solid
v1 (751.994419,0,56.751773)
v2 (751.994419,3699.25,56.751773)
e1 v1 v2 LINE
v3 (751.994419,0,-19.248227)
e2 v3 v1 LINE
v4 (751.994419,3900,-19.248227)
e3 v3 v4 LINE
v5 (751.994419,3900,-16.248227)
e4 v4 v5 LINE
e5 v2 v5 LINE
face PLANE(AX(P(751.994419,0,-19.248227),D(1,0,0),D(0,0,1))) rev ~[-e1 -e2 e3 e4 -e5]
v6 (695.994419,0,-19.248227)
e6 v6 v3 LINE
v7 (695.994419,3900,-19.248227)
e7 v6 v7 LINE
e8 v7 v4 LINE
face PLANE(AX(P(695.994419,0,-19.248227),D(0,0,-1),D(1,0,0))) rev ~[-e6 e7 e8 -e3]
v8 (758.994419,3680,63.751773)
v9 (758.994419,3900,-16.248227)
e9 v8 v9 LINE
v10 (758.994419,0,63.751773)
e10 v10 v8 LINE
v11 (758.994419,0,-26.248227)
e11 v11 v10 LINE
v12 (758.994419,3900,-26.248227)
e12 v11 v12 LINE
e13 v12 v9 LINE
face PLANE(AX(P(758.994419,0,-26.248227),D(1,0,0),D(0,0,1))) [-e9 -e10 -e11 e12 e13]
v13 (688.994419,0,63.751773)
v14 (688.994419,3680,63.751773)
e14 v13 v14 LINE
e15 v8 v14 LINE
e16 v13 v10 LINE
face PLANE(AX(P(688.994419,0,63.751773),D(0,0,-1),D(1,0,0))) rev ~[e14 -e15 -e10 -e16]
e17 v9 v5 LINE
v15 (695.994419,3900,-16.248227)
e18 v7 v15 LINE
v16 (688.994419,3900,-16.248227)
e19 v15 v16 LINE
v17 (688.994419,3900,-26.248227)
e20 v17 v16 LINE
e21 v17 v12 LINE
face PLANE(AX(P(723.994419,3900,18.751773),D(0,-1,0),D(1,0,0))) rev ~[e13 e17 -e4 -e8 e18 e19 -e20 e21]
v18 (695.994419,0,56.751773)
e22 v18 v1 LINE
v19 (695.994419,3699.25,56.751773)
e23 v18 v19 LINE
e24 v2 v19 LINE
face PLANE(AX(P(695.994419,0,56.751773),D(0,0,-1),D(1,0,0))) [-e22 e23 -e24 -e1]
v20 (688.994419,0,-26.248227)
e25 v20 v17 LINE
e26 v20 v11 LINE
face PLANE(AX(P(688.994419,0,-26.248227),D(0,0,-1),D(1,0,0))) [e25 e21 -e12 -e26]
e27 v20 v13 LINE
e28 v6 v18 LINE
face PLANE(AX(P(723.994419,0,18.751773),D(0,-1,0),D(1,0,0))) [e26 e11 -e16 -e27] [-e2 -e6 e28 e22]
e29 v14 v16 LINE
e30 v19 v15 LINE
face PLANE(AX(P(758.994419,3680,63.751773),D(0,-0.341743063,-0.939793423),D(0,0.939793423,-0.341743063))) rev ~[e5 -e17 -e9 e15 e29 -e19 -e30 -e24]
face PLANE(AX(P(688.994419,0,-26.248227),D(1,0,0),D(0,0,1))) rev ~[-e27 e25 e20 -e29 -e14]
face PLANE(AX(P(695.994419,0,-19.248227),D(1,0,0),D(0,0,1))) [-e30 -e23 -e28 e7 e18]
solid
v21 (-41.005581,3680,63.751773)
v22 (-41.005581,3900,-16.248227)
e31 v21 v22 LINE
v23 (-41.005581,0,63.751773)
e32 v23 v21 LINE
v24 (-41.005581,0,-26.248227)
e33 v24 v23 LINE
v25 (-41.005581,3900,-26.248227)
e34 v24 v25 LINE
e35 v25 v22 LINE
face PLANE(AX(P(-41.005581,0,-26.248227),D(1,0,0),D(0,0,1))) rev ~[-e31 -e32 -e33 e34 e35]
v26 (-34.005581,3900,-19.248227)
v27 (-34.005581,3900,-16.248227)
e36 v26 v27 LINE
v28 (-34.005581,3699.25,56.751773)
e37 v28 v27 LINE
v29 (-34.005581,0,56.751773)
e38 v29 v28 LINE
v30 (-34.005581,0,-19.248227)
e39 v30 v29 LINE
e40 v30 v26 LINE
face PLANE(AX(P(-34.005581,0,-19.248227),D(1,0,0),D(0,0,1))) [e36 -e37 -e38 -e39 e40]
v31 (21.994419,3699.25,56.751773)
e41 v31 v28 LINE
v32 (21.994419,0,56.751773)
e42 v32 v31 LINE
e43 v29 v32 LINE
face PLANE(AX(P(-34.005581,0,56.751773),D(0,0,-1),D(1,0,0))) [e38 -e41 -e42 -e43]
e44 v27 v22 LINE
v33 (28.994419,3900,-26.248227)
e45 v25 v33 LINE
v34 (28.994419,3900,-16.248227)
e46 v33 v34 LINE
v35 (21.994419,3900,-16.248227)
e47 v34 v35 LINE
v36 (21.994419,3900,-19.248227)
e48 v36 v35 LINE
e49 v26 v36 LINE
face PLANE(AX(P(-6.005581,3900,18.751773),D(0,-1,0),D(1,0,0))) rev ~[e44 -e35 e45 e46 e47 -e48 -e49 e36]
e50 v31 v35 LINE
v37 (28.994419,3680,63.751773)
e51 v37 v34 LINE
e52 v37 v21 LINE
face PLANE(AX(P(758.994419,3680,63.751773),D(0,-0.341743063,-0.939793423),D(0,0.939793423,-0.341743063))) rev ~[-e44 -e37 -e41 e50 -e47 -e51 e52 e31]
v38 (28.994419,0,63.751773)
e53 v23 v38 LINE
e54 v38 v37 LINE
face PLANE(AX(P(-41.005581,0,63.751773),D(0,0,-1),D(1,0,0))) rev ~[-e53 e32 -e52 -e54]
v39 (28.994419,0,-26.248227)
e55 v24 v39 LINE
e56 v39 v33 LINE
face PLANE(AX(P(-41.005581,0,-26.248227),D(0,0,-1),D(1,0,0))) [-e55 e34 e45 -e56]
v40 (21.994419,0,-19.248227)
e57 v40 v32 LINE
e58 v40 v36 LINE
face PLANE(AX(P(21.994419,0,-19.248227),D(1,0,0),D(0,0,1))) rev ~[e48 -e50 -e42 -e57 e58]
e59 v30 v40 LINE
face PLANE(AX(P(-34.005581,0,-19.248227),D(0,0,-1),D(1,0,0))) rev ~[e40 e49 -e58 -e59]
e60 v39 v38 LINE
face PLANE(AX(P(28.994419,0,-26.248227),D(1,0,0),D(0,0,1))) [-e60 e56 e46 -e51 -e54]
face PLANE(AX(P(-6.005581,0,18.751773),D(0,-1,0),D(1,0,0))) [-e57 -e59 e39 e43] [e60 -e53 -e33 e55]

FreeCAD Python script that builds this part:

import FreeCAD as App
import Part
import Sketcher
from FreeCAD import Vector
Q = App.Units.Quantity


def add_polygon(sketch, points):
    """Adds a closed chain of lines whose ends are joined by coincident constraints."""
    first, n = sketch.GeometryCount, len(points)
    for a, b in zip(points, points[1:] + points[:1]):
        sketch.addGeometry(Part.LineSegment(App.Vector(*a, 0), App.Vector(*b, 0)), False)
    for i in range(n):
        sketch.addConstraint(Sketcher.Constraint("Coincident", first + i, 2, first + (i + 1) % n, 1))

doc = App.newDocument("Part")
params = doc.addObject("Spreadsheet::Sheet", "Params")
for row, (alias, value) in enumerate([
    ("sketch1_width", "70 mm"),
    ("sketch1_width2", "56 mm"),
    ("sketch1_height", "90 mm"),
    ("sketch1_height2", "76 mm"),
    ("pad1_length", "3900 mm"),
    ("sketch2_width", "220 mm"),
    ("sketch2_height", "80 mm"),
    ("sketch3_width", "220 mm"),
    ("sketch3_height", "80 mm"),
], start=1):
    params.set(f"A{row}", alias)
    params.set(f"B{row}", "=" + value)
    params.setAlias(f"B{row}", alias)

body = doc.addObject("PartDesign::Body", "Body")
body.AllowCompound = True

sketch1 = body.newObject("Sketcher::SketchObject", "Sketch")
sketch1.AttachmentSupport = (doc.getObject("XZ_Plane"), [""])
sketch1.MapMode = "FlatFace"
add_polygon(sketch1, [(-41.005581, 63.751773), (-41.005581, -26.248227), (28.994419, -26.248227), (28.994419, 63.751773)])
add_polygon(sketch1, [(21.994419, -19.248227), (-34.005581, -19.248227), (-34.005581, 56.751773), (21.994419, 56.751773)])
add_polygon(sketch1, [(688.994419, 63.751773), (688.994419, -26.248227), (758.994419, -26.248227), (758.994419, 63.751773)])
add_polygon(sketch1, [(751.994419, -19.248227), (695.994419, -19.248227), (695.994419, 56.751773), (751.994419, 56.751773)])
sketch1.addConstraint([
    Sketcher.Constraint("Vertical", 0),
    Sketcher.Constraint("Horizontal", 1),
    Sketcher.Constraint("Vertical", 2),
    Sketcher.Constraint("Horizontal", 3),
    Sketcher.Constraint("Horizontal", 4),
    Sketcher.Constraint("Vertical", 5),
    Sketcher.Constraint("Horizontal", 6),
    Sketcher.Constraint("Vertical", 7),
    Sketcher.Constraint("Vertical", 8),
    Sketcher.Constraint("Horizontal", 9),
    Sketcher.Constraint("Vertical", 10),
    Sketcher.Constraint("Horizontal", 11),
    Sketcher.Constraint("Horizontal", 12),
    Sketcher.Constraint("Vertical", 13),
    Sketcher.Constraint("Horizontal", 14),
    Sketcher.Constraint("Vertical", 15),
    Sketcher.Constraint("Horizontal", 1, 2, 8, 2),
    Sketcher.Constraint("Horizontal", 3, 2, 10, 2),
    Sketcher.Constraint("Horizontal", 7, 2, 12, 2),
    Sketcher.Constraint("Horizontal", 6, 2, 13, 2),
    Sketcher.Constraint("Equal", 3, 9),
    Sketcher.Constraint("Equal", 6, 12),
    Sketcher.Constraint("DistanceX", 1, 1, 1, 2, Q("70 mm")),
    Sketcher.Constraint("DistanceX", 4, 2, 4, 1, Q("56 mm")),
    Sketcher.Constraint("DistanceY", 0, 2, 0, 1, Q("90 mm")),
    Sketcher.Constraint("DistanceY", 5, 1, 5, 2, Q("76 mm")),
    Sketcher.Constraint("DistanceX", 0, 2, 4, 2, Q("7 mm")),
    Sketcher.Constraint("DistanceY", 0, 2, 4, 2, Q("7 mm")),
    Sketcher.Constraint("DistanceX", 1, 2, 8, 2, Q("660 mm")),
    Sketcher.Constraint("DistanceX", 8, 2, 12, 2, Q("7 mm")),
    Sketcher.Constraint("DistanceX", 0, 2, -1, 1, Q("41.005581 mm")),
    Sketcher.Constraint("DistanceY", 0, 2, -1, 1, Q("26.248227 mm")),
])
sketch1.setExpression("Constraints[38]", "Params.sketch1_width")
sketch1.setExpression("Constraints[39]", "Params.sketch1_width2")
sketch1.setExpression("Constraints[40]", "Params.sketch1_height")
sketch1.setExpression("Constraints[41]", "Params.sketch1_height2")
pad1 = body.newObject("PartDesign::Pad", "Pad")
pad1.Profile = sketch1
pad1.setExpression("Length", "Params.pad1_length")
pad1.Reversed = True

sketch2 = body.newObject("Sketcher::SketchObject", "Sketch001")
sketch2.AttachmentSupport = (doc.getObject("YZ_Plane"), [""])
sketch2.MapMode = "FlatFace"
sketch2.AttachmentOffset = App.Placement(Vector(0, 0, 758.994419), App.Rotation())
add_polygon(sketch2, [(3900, 63.751773), (3680, 63.751773), (3900, -16.248227)])
sketch2.addConstraint([
    Sketcher.Constraint("Horizontal", 0),
    Sketcher.Constraint("Vertical", 2),
    Sketcher.Constraint("DistanceX", 0, 2, 0, 1, Q("220 mm")),
    Sketcher.Constraint("DistanceY", 2, 1, 2, 2, Q("80 mm")),
    Sketcher.Constraint("DistanceX", -1, 1, 0, 2, Q("3680 mm")),
    Sketcher.Constraint("DistanceY", -1, 1, 0, 2, Q("63.751773 mm")),
])
sketch2.setExpression("Constraints[5]", "Params.sketch2_width")
sketch2.setExpression("Constraints[6]", "Params.sketch2_height")
pocket1 = body.newObject("PartDesign::Pocket", "Pocket")
pocket1.Profile = sketch2
pocket1.Type = "ThroughAll"

sketch3 = body.newObject("Sketcher::SketchObject", "Sketch002")
sketch3.AttachmentSupport = (doc.getObject("YZ_Plane"), [""])
sketch3.MapMode = "FlatFace"
sketch3.AttachmentOffset = App.Placement(Vector(0, 0, 28.994419), App.Rotation())
add_polygon(sketch3, [(3900, 63.751773), (3680, 63.751773), (3900, -16.248227)])
sketch3.addConstraint([
    Sketcher.Constraint("Horizontal", 0),
    Sketcher.Constraint("Vertical", 2),
    Sketcher.Constraint("DistanceX", 0, 2, 0, 1, Q("220 mm")),
    Sketcher.Constraint("DistanceY", 2, 1, 2, 2, Q("80 mm")),
    Sketcher.Constraint("DistanceX", -1, 1, 0, 2, Q("3680 mm")),
    Sketcher.Constraint("DistanceY", -1, 1, 0, 2, Q("63.751773 mm")),
])
sketch3.setExpression("Constraints[5]", "Params.sketch3_width")
sketch3.setExpression("Constraints[6]", "Params.sketch3_height")
pocket2 = body.newObject("PartDesign::Pocket", "Pocket001")
pocket2.Profile = sketch3
pocket2.Type = "ThroughAll"

doc.recompute()
